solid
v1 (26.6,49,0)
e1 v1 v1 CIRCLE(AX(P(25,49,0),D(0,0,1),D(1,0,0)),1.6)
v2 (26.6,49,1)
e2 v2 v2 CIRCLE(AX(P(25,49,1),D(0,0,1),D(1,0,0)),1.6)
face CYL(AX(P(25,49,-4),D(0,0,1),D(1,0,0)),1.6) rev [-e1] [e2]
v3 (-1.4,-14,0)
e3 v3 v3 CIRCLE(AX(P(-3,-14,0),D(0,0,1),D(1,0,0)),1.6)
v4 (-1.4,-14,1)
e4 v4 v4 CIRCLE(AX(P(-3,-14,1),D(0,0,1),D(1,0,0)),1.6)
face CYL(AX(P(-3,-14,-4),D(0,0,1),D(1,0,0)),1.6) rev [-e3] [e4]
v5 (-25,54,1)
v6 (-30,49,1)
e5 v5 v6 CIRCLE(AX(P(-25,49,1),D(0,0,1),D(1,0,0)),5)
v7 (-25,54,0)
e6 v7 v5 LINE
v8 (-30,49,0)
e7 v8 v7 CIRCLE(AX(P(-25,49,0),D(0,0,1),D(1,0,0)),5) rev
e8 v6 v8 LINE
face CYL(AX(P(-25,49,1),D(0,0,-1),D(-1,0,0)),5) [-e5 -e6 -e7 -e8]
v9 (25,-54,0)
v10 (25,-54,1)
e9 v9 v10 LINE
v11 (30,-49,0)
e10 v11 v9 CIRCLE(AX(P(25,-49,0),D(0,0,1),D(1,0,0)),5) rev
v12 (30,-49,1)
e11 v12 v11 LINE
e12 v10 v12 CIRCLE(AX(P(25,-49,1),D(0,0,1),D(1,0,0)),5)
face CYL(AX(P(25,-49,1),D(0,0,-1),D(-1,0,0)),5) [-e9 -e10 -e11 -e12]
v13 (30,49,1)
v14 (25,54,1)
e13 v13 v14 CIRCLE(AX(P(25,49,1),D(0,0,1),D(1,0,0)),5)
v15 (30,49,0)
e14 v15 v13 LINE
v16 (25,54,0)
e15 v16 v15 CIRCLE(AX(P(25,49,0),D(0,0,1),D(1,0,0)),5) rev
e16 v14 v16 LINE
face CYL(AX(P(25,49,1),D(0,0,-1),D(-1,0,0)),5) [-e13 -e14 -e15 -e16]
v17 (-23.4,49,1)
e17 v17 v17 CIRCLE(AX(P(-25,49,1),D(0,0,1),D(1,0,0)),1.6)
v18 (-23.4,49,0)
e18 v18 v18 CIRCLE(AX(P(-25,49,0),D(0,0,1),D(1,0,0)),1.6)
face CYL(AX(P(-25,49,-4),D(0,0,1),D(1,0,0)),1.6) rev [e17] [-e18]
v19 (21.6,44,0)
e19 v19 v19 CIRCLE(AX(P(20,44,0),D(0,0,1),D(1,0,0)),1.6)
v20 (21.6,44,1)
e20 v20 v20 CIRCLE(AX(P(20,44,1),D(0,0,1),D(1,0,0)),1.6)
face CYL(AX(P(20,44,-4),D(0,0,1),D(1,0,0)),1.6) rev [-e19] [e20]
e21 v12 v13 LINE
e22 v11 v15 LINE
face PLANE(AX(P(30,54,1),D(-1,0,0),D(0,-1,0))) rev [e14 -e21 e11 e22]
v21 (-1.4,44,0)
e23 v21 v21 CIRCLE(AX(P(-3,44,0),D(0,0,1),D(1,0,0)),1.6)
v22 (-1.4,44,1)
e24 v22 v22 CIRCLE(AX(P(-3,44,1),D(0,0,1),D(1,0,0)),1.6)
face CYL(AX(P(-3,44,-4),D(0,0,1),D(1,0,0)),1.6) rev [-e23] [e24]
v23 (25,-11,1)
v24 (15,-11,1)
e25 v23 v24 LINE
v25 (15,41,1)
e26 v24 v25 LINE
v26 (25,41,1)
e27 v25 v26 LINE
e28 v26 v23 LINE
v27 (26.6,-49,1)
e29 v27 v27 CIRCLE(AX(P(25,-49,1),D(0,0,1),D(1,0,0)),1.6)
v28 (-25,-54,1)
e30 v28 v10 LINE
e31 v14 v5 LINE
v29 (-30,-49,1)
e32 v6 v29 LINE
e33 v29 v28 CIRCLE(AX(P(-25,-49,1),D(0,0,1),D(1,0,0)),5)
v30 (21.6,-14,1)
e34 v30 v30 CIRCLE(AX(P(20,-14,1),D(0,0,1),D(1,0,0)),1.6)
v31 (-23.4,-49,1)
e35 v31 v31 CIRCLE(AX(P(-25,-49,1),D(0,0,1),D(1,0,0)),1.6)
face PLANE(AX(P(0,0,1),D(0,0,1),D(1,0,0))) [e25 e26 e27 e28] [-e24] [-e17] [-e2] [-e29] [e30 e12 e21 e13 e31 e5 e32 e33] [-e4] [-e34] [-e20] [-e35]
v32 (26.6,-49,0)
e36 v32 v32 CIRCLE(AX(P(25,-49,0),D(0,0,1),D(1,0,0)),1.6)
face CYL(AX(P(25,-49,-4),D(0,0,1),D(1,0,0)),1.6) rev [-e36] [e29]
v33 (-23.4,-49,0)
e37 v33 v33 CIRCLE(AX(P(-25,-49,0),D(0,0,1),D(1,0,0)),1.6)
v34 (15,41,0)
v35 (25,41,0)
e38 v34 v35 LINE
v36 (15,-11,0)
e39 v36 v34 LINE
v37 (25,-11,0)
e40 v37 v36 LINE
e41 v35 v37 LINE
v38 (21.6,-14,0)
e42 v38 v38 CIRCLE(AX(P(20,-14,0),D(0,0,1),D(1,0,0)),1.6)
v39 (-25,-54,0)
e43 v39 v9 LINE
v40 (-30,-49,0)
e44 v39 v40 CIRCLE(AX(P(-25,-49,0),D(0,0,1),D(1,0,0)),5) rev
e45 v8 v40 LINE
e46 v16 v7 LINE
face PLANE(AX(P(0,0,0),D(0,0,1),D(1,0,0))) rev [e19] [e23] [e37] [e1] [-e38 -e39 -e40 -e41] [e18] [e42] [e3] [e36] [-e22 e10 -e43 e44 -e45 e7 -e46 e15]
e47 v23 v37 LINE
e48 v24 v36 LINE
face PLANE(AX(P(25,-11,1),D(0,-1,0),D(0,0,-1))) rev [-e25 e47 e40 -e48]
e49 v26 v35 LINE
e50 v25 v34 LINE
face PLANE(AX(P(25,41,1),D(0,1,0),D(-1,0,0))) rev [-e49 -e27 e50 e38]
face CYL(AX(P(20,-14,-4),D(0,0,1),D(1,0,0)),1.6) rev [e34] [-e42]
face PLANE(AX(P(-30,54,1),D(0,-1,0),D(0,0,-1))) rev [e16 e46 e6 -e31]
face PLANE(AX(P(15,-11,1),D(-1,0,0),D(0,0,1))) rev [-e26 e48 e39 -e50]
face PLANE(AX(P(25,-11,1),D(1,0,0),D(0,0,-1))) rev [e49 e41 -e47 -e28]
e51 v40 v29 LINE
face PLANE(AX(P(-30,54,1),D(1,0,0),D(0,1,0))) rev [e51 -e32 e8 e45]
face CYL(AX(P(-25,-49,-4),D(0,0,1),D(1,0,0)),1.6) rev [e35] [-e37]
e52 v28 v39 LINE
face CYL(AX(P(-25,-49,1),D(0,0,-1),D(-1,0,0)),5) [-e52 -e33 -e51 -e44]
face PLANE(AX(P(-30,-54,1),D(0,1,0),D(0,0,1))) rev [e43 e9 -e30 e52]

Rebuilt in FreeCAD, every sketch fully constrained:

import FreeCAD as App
import Part
import Sketcher

V = App.Vector
Q = App.Units.Quantity


def edges_at(feature, points):
    """Names of the edges that pass closest to the given points."""
    edges = feature.Shape.Edges
    near = lambda p: min(range(len(edges)), key=lambda i: edges[i].distToShape(Part.Vertex(*p))[0])
    return sorted({f"Edge{near(p) + 1}" for p in points})


def add_polygon(sketch, points):
    """Adds a closed chain of lines whose ends are joined by coincident constraints."""
    first, n = sketch.GeometryCount, len(points)
    for a, b in zip(points, points[1:] + points[:1]):
        sketch.addGeometry(Part.LineSegment(App.Vector(*a, 0), App.Vector(*b, 0)), False)
    for i in range(n):
        sketch.addConstraint(Sketcher.Constraint("Coincident", first + i, 2, first + (i + 1) % n, 1))

doc = App.newDocument("Part")
body = doc.addObject("PartDesign::Body", "Body")

# Sketch on XY plane
sketch1 = body.newObject("Sketcher::SketchObject", "Sketch")
sketch1.AttachmentSupport = (doc.getObject("XY_Plane"), [""])
sketch1.MapMode = "FlatFace"
add_polygon(sketch1, [(-30, 54), (-30, -54), (30, -54), (30, 54)])  # lines 0-3
sketch1.addConstraint([
    Sketcher.Constraint("Vertical", 0),
    Sketcher.Constraint("Horizontal", 1),
    Sketcher.Constraint("Vertical", 2),
    Sketcher.Constraint("Horizontal", 3),
    Sketcher.Constraint("Symmetric", 0, 2, 2, 2, -1, 1),
    Sketcher.Constraint("DistanceX", 1, 1, 1, 2, Q("60 mm")),
    Sketcher.Constraint("DistanceY", 0, 2, 0, 1, Q("108 mm")),
])
pad1 = body.newObject("PartDesign::Pad", "Pad")
pad1.Profile = sketch1
pad1.Length = 1

# Sketch on XY plane
sketch2 = body.newObject("Sketcher::SketchObject", "Sketch001")
sketch2.AttachmentSupport = (doc.getObject("XY_Plane"), [""])
sketch2.MapMode = "FlatFace"
sketch2.AttachmentOffset = App.Placement(V(0, 0, 1), App.Rotation())
sketch2.addGeometry([
    Part.Circle(V(-3, 44, 0), V(0, 0, 1), 1.6),
    Part.Circle(V(20, 44, 0), V(0, 0, 1), 1.6),
    Part.Circle(V(-3, -14, 0), V(0, 0, 1), 1.6),
    Part.Circle(V(20, -14, 0), V(0, 0, 1), 1.6),
], False)
sketch2.addConstraint([
    Sketcher.Constraint("Equal", 0, 1),
    Sketcher.Constraint("Equal", 1, 2),
    Sketcher.Constraint("Equal", 2, 3),
    Sketcher.Constraint("Horizontal", 0, 3, 1, 3),
    Sketcher.Constraint("Horizontal", 2, 3, 3, 3),
    Sketcher.Constraint("Vertical", 0, 3, 2, 3),
    Sketcher.Constraint("Vertical", 1, 3, 3, 3),
    Sketcher.Constraint("Diameter", 0, Q("3.2 mm")),
    Sketcher.Constraint("DistanceX", 0, 3, -1, 1, Q("3 mm")),
    Sketcher.Constraint("DistanceY", -1, 1, 0, 3, Q("44 mm")),
    Sketcher.Constraint("DistanceX", -1, 1, 1, 3, Q("20 mm")),
    Sketcher.Constraint("DistanceY", 2, 3, -1, 1, Q("14 mm")),
])
pocket1 = body.newObject("PartDesign::Pocket", "Pocket")
pocket1.Profile = sketch2
pocket1.Length = 5

# Sketch on XY plane
sketch3 = body.newObject("Sketcher::SketchObject", "Sketch002")
sketch3.AttachmentSupport = (doc.getObject("XY_Plane"), [""])
sketch3.MapMode = "FlatFace"
sketch3.AttachmentOffset = App.Placement(V(0, 0, 1), App.Rotation())
sketch3.addGeometry([
    Part.Circle(V(-25, 49, 0), V(0, 0, 1), 1.6),
    Part.Circle(V(25, 49, 0), V(0, 0, 1), 1.6),
    Part.Circle(V(-25, -49, 0), V(0, 0, 1), 1.6),
    Part.Circle(V(25, -49, 0), V(0, 0, 1), 1.6),
], False)
sketch3.addConstraint([
    Sketcher.Constraint("Equal", 0, 1),
    Sketcher.Constraint("Equal", 1, 2),
    Sketcher.Constraint("Equal", 2, 3),
    Sketcher.Constraint("Symmetric", 1, 3, 2, 3, -1, 1),
    Sketcher.Constraint("Symmetric", 0, 3, 3, 3, -1, 1),
    Sketcher.Constraint("Symmetric", 0, 3, 1, 3, -2),
    Sketcher.Constraint("Diameter", 0, Q("3.2 mm")),
    Sketcher.Constraint("DistanceX", 0, 3, -1, 1, Q("25 mm")),
    Sketcher.Constraint("DistanceY", -1, 1, 0, 3, Q("49 mm")),
])
pocket2 = body.newObject("PartDesign::Pocket", "Pocket001")
pocket2.Profile = sketch3
pocket2.Length = 5
doc.recompute()

fillet = body.newObject("PartDesign::Fillet", "Fillet")
fillet.Base = (pocket2, edges_at(pocket2, [
    (30, -54, 0.5),
    (-30, -54, 0.5),
    (-30, 54, 0.5),
    (30, 54, 0.5),
]))
fillet.Radius = 5

# Sketch on XY plane
sketch4 = body.newObject("Sketcher::SketchObject", "Sketch003")
sketch4.AttachmentSupport = (doc.getObject("XY_Plane"), [""])
sketch4.MapMode = "FlatFace"
add_polygon(sketch4, [(25, 41), (25, -11), (15, -11), (15, 41)])  # lines 0-3
sketch4.addConstraint([
    Sketcher.Constraint("Vertical", 0),
    Sketcher.Constraint("Horizontal", 1),
    Sketcher.Constraint("Vertical", 2),
    Sketcher.Constraint("Horizontal", 3),
    Sketcher.Constraint("DistanceX", 1, 2, 1, 1, Q("10 mm")),
    Sketcher.Constraint("DistanceY", 0, 2, 0, 1, Q("52 mm")),
    Sketcher.Constraint("DistanceX", -1, 1, 0, 2, Q("25 mm")),
    Sketcher.Constraint("DistanceY", 0, 2, -1, 1, Q("11 mm")),
])
pocket3 = body.newObject("PartDesign::Pocket", "Pocket002")
pocket3.Profile = sketch4
pocket3.Type = "ThroughAll"
pocket3.Reversed = True

doc.recompute()
